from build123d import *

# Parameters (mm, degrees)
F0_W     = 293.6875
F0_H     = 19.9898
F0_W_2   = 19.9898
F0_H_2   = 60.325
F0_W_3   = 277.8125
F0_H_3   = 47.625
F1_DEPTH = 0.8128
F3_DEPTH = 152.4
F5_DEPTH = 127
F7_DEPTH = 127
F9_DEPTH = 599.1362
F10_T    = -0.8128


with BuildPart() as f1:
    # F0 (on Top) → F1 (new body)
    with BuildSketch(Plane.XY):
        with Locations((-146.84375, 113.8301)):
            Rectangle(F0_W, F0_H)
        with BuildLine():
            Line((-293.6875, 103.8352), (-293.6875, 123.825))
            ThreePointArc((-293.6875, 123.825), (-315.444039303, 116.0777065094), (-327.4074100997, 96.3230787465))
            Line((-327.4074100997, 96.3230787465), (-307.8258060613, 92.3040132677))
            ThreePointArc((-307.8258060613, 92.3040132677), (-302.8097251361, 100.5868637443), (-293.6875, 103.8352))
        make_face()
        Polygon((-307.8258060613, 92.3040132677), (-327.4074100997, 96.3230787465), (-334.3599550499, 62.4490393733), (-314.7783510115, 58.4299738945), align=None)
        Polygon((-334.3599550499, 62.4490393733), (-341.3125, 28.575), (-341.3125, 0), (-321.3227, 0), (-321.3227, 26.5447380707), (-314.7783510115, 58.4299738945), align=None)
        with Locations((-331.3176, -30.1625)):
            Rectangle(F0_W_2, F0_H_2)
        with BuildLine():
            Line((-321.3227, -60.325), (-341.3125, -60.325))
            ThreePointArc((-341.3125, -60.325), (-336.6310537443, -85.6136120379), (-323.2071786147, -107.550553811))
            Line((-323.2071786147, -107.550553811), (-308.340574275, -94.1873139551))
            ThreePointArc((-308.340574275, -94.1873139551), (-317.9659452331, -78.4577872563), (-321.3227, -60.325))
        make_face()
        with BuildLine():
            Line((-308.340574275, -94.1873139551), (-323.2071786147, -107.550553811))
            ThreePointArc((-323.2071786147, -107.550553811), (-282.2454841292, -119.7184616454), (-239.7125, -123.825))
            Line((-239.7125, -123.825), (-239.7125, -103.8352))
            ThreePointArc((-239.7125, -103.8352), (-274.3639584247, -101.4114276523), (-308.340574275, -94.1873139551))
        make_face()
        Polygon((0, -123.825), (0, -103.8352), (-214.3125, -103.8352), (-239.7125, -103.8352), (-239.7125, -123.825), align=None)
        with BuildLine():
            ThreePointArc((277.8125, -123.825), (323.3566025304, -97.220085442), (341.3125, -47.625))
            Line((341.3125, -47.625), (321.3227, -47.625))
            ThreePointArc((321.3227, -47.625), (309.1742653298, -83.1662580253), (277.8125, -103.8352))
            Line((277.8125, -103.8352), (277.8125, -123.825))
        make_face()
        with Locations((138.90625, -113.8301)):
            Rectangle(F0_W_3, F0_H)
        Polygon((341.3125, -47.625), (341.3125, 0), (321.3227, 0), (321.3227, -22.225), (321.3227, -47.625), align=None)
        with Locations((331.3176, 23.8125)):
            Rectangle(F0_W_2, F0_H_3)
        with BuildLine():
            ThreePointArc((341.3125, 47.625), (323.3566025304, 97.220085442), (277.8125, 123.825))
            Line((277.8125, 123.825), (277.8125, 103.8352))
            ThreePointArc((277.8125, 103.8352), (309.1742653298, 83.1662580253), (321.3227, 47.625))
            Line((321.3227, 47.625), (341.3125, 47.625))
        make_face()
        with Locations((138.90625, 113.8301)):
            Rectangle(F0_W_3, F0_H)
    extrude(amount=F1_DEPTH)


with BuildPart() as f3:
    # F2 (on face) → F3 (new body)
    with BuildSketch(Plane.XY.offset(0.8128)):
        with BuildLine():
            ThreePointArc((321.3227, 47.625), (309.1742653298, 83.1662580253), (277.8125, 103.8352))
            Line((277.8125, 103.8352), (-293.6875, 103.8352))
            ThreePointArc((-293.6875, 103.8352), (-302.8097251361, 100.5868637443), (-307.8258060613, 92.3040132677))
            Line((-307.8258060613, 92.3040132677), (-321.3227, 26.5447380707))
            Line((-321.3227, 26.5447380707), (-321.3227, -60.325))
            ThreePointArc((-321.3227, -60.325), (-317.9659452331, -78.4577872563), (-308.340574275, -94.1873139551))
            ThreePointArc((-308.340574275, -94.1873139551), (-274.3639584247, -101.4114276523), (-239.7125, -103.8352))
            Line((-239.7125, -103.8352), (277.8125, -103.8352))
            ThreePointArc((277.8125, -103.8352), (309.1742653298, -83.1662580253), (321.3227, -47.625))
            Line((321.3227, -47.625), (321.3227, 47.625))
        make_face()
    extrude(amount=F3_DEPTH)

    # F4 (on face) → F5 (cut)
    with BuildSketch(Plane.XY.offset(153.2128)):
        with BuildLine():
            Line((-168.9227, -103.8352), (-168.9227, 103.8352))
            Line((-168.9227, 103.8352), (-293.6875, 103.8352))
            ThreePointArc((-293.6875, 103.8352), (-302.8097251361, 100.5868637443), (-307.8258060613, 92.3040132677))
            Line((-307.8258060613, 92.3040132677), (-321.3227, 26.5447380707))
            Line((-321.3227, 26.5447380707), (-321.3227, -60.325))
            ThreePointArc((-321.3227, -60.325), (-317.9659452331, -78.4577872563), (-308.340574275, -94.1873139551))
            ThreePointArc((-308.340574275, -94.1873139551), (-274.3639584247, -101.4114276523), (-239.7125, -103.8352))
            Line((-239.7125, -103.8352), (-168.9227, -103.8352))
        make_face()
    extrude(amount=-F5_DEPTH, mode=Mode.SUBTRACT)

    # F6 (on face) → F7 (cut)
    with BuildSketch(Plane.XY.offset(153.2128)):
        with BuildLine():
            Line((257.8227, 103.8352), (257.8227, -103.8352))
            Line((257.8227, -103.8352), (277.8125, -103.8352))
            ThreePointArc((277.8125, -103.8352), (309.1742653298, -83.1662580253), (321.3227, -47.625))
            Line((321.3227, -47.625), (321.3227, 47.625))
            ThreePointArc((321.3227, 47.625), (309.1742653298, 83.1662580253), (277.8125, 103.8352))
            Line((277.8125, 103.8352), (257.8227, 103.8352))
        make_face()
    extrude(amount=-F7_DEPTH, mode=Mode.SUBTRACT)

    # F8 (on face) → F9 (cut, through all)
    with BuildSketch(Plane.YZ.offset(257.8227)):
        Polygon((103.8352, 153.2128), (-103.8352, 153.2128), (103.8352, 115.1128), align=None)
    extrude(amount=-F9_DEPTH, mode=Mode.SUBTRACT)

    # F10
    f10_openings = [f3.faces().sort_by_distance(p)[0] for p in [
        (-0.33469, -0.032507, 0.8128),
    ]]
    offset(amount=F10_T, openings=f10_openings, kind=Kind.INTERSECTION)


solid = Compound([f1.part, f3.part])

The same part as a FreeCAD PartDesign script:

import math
import FreeCAD as App
import Part
import Sketcher
Q = App.Units.Quantity


def faces_at(feature, points):
    """Names of the faces that lie closest to the given points."""
    faces = feature.Shape.Faces
    near = lambda p: min(range(len(faces)), key=lambda i: faces[i].distToShape(Part.Vertex(*p))[0])
    return sorted({f"Face{near(p) + 1}" for p in points})

doc = App.newDocument("Part")
body = doc.addObject("PartDesign::Body", "Body")

# Sketch on XY plane
sketch1 = body.newObject("Sketcher::SketchObject", "Sketch")
sketch1.AttachmentSupport = (doc.getObject("XY_Plane"), [""])
sketch1.MapMode = "FlatFace"
sketch1.addGeometry([
    Part.ArcOfCircle(Part.Circle(App.Vector(-294, 89, 0), App.Vector(0, 0, 1), 34), math.radians(90), math.radians(168)),  # 0
    Part.LineSegment(App.Vector(-327, 96, 0), App.Vector(-334, 62, 0)),  # 1
    Part.LineSegment(App.Vector(-334, 62, 0), App.Vector(-341, 29, 0)),  # 2
    Part.LineSegment(App.Vector(-341, 29, 0), App.Vector(-341, -60, 0)),  # 3
    Part.ArcOfCircle(Part.Circle(App.Vector(-271, -60, 0), App.Vector(0, 0, 1), 71), math.radians(180), math.radians(222)),  # 4
    Part.ArcOfCircle(Part.Circle(App.Vector(-240, 98, 0), App.Vector(0, 0, 1), 222), math.radians(-112), math.radians(-90)),  # 5
    Part.LineSegment(App.Vector(-240, -124, 0), App.Vector(278, -124, 0)),  # 6
    Part.ArcOfCircle(Part.Circle(App.Vector(264, -48, 0), App.Vector(0, 0, 1), 77), math.radians(-80), math.radians(0)),  # 7
    Part.LineSegment(App.Vector(341, -48, 0), App.Vector(341, 48, 0)),  # 8
    Part.ArcOfCircle(Part.Circle(App.Vector(264, 48, 0), App.Vector(0, 0, 1), 77), math.radians(0), math.radians(80)),  # 9
    Part.LineSegment(App.Vector(278, 124, 0), App.Vector(-294, 124, 0)),  # 10
    Part.LineSegment(App.Vector(-294, 104, 0), App.Vector(278, 104, 0)),  # 11
    Part.ArcOfCircle(Part.Circle(App.Vector(263, 48, 0), App.Vector(0, 0, 1), 58), math.radians(0), math.radians(75)),  # 12
    Part.LineSegment(App.Vector(321, 48, 0), App.Vector(321, -48, 0)),  # 13
    Part.ArcOfCircle(Part.Circle(App.Vector(263, -48, 0), App.Vector(0, 0, 1), 58), math.radians(-75), math.radians(0)),  # 14
    Part.LineSegment(App.Vector(278, -104, 0), App.Vector(-240, -104, 0)),  # 15
    Part.ArcOfCircle(Part.Circle(App.Vector(-240, 145, 0), App.Vector(0, 0, 1), 249), math.radians(-106), math.radians(-90)),  # 16
    Part.ArcOfCircle(Part.Circle(App.Vector(-271, -60, 0), App.Vector(0, 0, 1), 51), math.radians(180), math.radians(222)),  # 17
    Part.LineSegment(App.Vector(-321, -60, 0), App.Vector(-321, 27, 0)),  # 18
    Part.LineSegment(App.Vector(-321, 27, 0), App.Vector(-315, 58, 0)),  # 19
    Part.LineSegment(App.Vector(-315, 58, 0), App.Vector(-308, 92, 0)),  # 20
    Part.ArcOfCircle(Part.Circle(App.Vector(-294, 89, 0), App.Vector(0, 0, 1), 14), math.radians(90), math.radians(168)),  # 21
], False)
sketch1.addConstraint([
    Sketcher.Constraint("Tangent", 0, 2, 1, 1),
    Sketcher.Constraint("Coincident", 1, 2, 2, 1),
    Sketcher.Constraint("Coincident", 2, 2, 3, 1),
    Sketcher.Constraint("Tangent", 3, 2, 4, 1),
    Sketcher.Constraint("Coincident", 4, 2, 5, 1),
    Sketcher.Constraint("Tangent", 5, 2, 6, 1),
    Sketcher.Constraint("Coincident", 6, 2, 7, 1),
    Sketcher.Constraint("Tangent", 7, 2, 8, 1),
    Sketcher.Constraint("Tangent", 8, 2, 9, 1),
    Sketcher.Constraint("Coincident", 9, 2, 10, 1),
    Sketcher.Constraint("Tangent", 10, 2, 0, 1),
    Sketcher.Constraint("Coincident", 11, 2, 12, 2),
    Sketcher.Constraint("Tangent", 12, 1, 13, 1),
    Sketcher.Constraint("Tangent", 13, 2, 14, 2),
    Sketcher.Constraint("Coincident", 14, 1, 15, 1),
    Sketcher.Constraint("Tangent", 15, 2, 16, 2),
    Sketcher.Constraint("Coincident", 16, 1, 17, 2),
    Sketcher.Constraint("Tangent", 17, 1, 18, 1),
    Sketcher.Constraint("Coincident", 18, 2, 19, 1),
    Sketcher.Constraint("Coincident", 19, 2, 20, 1),
    Sketcher.Constraint("Tangent", 20, 2, 21, 2),
    Sketcher.Constraint("Tangent", 21, 1, 11, 1),
    Sketcher.Constraint("Vertical", 3),
    Sketcher.Constraint("Horizontal", 6),
    Sketcher.Constraint("Vertical", 8),
    Sketcher.Constraint("Horizontal", 10),
    Sketcher.Constraint("Horizontal", 11),
    Sketcher.Constraint("Vertical", 13),
    Sketcher.Constraint("Horizontal", 15),
    Sketcher.Constraint("Vertical", 18),
    Sketcher.Constraint("Coincident", 17, 3, 4, 3),
    Sketcher.Constraint("Coincident", 21, 3, 0, 3),
    Sketcher.Constraint("Equal", 7, 9),
    Sketcher.Constraint("Equal", 12, 14),
    Sketcher.Constraint("Symmetric", 6, 2, 9, 2, -1),
    Sketcher.Constraint("Symmetric", 11, 2, 14, 1, -1),
    Sketcher.Constraint("Parallel", 1, 2),
    Sketcher.Constraint("Parallel", 2, 19),
    Sketcher.Constraint("Parallel", 19, 20),
    Sketcher.Constraint("Horizontal", 9, 3, 12, 3),
    Sketcher.Constraint("Vertical", 5, 3, 16, 3),
    Sketcher.Constraint("Vertical", 9, 2, 11, 2),
    Sketcher.Constraint("Equal", 1, 2),
    Sketcher.Constraint("Equal", 2, 20),
    Sketcher.Constraint("Radius", 7, Q("3.05 in")),
    Sketcher.Constraint("DistanceX", 10, 2, 10, 1, Q("22.5 in")),
    Sketcher.Constraint("DistanceY", 3, 2, 3, 1, Q("3.5 in")),
    Sketcher.Constraint("Radius", 4, Q("2.78125 in")),
    Sketcher.Constraint("DistanceX", 3, 2, 5, 2, Q("4 in")),
    Sketcher.Constraint("DistanceY", 5, 2, 2, 2, Q("6 in")),
    Sketcher.Constraint("DistanceY", 6, 2, 7, 3, Q("3 in")),
    Sketcher.Constraint("DistanceY", 8, 1, 8, 2, Q("3.75 in")),
    Sketcher.Constraint("DistanceX", 6, 1, 6, 2, Q("20.375 in")),
    Sketcher.Constraint("DistanceX", 0, 3, -1, 1, Q("11.5625 in")),
    Sketcher.Constraint("DistanceY", -1, 1, 11, 2, Q("4.088 in")),
    Sketcher.Constraint("Radius", 0, Q("34.422832 mm")),
    Sketcher.Constraint("Radius", 5, Q("222.318439 mm")),
    Sketcher.Constraint("Radius", 17, Q("50.65395 mm")),
    Sketcher.Constraint("DistanceX", 12, 1, 8, 2, Q("0.787 in")),
    Sketcher.Constraint("Radius", 16, Q("248.909153 mm")),
])
pad1 = body.newObject("PartDesign::Pad", "Pad")
pad1.Profile = sketch1
pad1.Length = Q("0.032 in")
body2 = doc.addObject("PartDesign::Body", "Body001")

# Sketch on XY plane
sketch2 = body2.newObject("Sketcher::SketchObject", "Sketch001")
sketch2.AttachmentSupport = (doc.getObject("XY_Plane001"), [""])
sketch2.MapMode = "FlatFace"
sketch2.AttachmentOffset = App.Placement(App.Vector(0, 0, 0.032 * 25.4), App.Rotation())
sketch2.addGeometry([
    Part.ArcOfCircle(Part.Circle(App.Vector(263, 48, 0), App.Vector(0, 0, 1), 58), math.radians(0), math.radians(75)),  # 0
    Part.LineSegment(App.Vector(278, 104, 0), App.Vector(-294, 104, 0)),  # 1
    Part.ArcOfCircle(Part.Circle(App.Vector(-294, 89, 0), App.Vector(0, 0, 1), 14), math.radians(90), math.radians(168)),  # 2
    Part.LineSegment(App.Vector(-308, 92, 0), App.Vector(-321, 27, 0)),  # 3
    Part.LineSegment(App.Vector(-321, 27, 0), App.Vector(-321, -60, 0)),  # 4
    Part.ArcOfCircle(Part.Circle(App.Vector(-271, -60, 0), App.Vector(0, 0, 1), 51), math.radians(180), math.radians(222)),  # 5
    Part.ArcOfCircle(Part.Circle(App.Vector(-240, 145, 0), App.Vector(0, 0, 1), 249), math.radians(-106), math.radians(-90)),  # 6
    Part.LineSegment(App.Vector(-240, -104, 0), App.Vector(278, -104, 0)),  # 7
    Part.ArcOfCircle(Part.Circle(App.Vector(263, -48, 0), App.Vector(0, 0, 1), 58), math.radians(-75), math.radians(0)),  # 8
    Part.LineSegment(App.Vector(321, -48, 0), App.Vector(321, 48, 0)),  # 9
], False)
sketch2.addConstraint([
    Sketcher.Constraint("Coincident", 0, 2, 1, 1),
    Sketcher.Constraint("Tangent", 1, 2, 2, 1),
    Sketcher.Constraint("Tangent", 2, 2, 3, 1),
    Sketcher.Constraint("Coincident", 3, 2, 4, 1),
    Sketcher.Constraint("Tangent", 4, 2, 5, 1),
    Sketcher.Constraint("Coincident", 5, 2, 6, 1),
    Sketcher.Constraint("Tangent", 6, 2, 7, 1),
    Sketcher.Constraint("Coincident", 7, 2, 8, 1),
    Sketcher.Constraint("Tangent", 8, 2, 9, 1),
    Sketcher.Constraint("Tangent", 9, 2, 0, 1),
    Sketcher.Constraint("Horizontal", 1),
    Sketcher.Constraint("Vertical", 4),
    Sketcher.Constraint("Horizontal", 7),
    Sketcher.Constraint("Vertical", 9),
    Sketcher.Constraint("Equal", 0, 8),
    Sketcher.Constraint("Symmetric", 0, 2, 7, 2, -1),
    Sketcher.Constraint("DistanceX", 1, 2, 1, 1, Q("22.5 in")),
    Sketcher.Constraint("DistanceY", 9, 1, 9, 2, Q("3.75 in")),
    Sketcher.Constraint("DistanceY", 5, 3, 8, 3, Q("0.5 in")),
    Sketcher.Constraint("DistanceX", 7, 1, 7, 2, Q("20.375 in")),
    Sketcher.Constraint("DistanceX", 2, 3, -1, 1, Q("11.5625 in")),
    Sketcher.Constraint("DistanceX", 5, 3, -1, 1, Q("10.65625 in")),
    Sketcher.Constraint("DistanceY", -1, 1, 0, 2, Q("4.088 in")),
    Sketcher.Constraint("Radius", 2, Q("14.433032 mm")),
    Sketcher.Constraint("Radius", 5, Q("50.65395 mm")),
    Sketcher.Constraint("DistanceX", 7, 2, 8, 2, Q("1.713 in")),
    Sketcher.Constraint("Radius", 6, Q("248.909153 mm")),
    Sketcher.Constraint("DistanceY", 4, 2, 4, 1, Q("86.869738 mm")),
])
pad2 = body2.newObject("PartDesign::Pad", "Pad001")
pad2.Profile = sketch2
pad2.Length = Q("6 in")

# Sketch on XY plane
sketch3 = body2.newObject("Sketcher::SketchObject", "Sketch002")
sketch3.AttachmentSupport = (doc.getObject("XY_Plane001"), [""])
sketch3.MapMode = "FlatFace"
sketch3.AttachmentOffset = App.Placement(App.Vector(0, 0, 6.032 * 25.4), App.Rotation())
sketch3.addGeometry([
    Part.LineSegment(App.Vector(-169, -104, 0), App.Vector(-169, 104, 0)),  # 0
    Part.LineSegment(App.Vector(-169, 104, 0), App.Vector(-294, 104, 0)),  # 1
    Part.ArcOfCircle(Part.Circle(App.Vector(-294, 89, 0), App.Vector(0, 0, 1), 14), math.radians(90), math.radians(168)),  # 2
    Part.LineSegment(App.Vector(-308, 92, 0), App.Vector(-321, 27, 0)),  # 3
    Part.LineSegment(App.Vector(-321, 27, 0), App.Vector(-321, -60, 0)),  # 4
    Part.ArcOfCircle(Part.Circle(App.Vector(-271, -60, 0), App.Vector(0, 0, 1), 51), math.radians(180), math.radians(222)),  # 5
    Part.ArcOfCircle(Part.Circle(App.Vector(-240, 145, 0), App.Vector(0, 0, 1), 249), math.radians(-106), math.radians(-90)),  # 6
    Part.LineSegment(App.Vector(-240, -104, 0), App.Vector(-169, -104, 0)),  # 7
], False)
sketch3.addConstraint([
    Sketcher.Constraint("Coincident", 0, 2, 1, 1),
    Sketcher.Constraint("Tangent", 1, 2, 2, 1),
    Sketcher.Constraint("Tangent", 2, 2, 3, 1),
    Sketcher.Constraint("Coincident", 3, 2, 4, 1),
    Sketcher.Constraint("Tangent", 4, 2, 5, 1),
    Sketcher.Constraint("Coincident", 5, 2, 6, 1),
    Sketcher.Constraint("Tangent", 6, 2, 7, 1),
    Sketcher.Constraint("Coincident", 7, 2, 0, 1),
    Sketcher.Constraint("Vertical", 0),
    Sketcher.Constraint("Horizontal", 1),
    Sketcher.Constraint("Vertical", 4),
    Sketcher.Constraint("Horizontal", 7),
    Sketcher.Constraint("DistanceX", 4, 2, 7, 2, Q("6 in")),
    Sketcher.Constraint("DistanceX", 1, 2, 1, 1, Q("4.912 in")),
    Sketcher.Constraint("DistanceX", 7, 1, 7, 2, Q("2.787 in")),
    Sketcher.Constraint("DistanceY", 0, 1, 0, 2, Q("8.176 in")),
    Sketcher.Constraint("DistanceX", 2, 3, -1, 1, Q("11.5625 in")),
    Sketcher.Constraint("DistanceX", 5, 3, -1, 1, Q("10.65625 in")),
    Sketcher.Constraint("DistanceY", 5, 3, -1, 1, Q("2.375 in")),
    Sketcher.Constraint("DistanceY", -1, 1, 0, 2, Q("4.088 in")),
    Sketcher.Constraint("Radius", 2, Q("14.433032 mm")),
    Sketcher.Constraint("Radius", 6, Q("248.909153 mm")),
    Sketcher.Constraint("DistanceY", 4, 2, 4, 1, Q("86.869738 mm")),
])
pocket1 = body2.newObject("PartDesign::Pocket", "Pocket")
pocket1.Profile = sketch3
pocket1.Length = Q("5 in")

# Sketch on XY plane
sketch4 = body2.newObject("Sketcher::SketchObject", "Sketch003")
sketch4.AttachmentSupport = (doc.getObject("XY_Plane001"), [""])
sketch4.MapMode = "FlatFace"
sketch4.AttachmentOffset = App.Placement(App.Vector(0, 0, 6.032 * 25.4), App.Rotation())
sketch4.addGeometry([
    Part.LineSegment(App.Vector(258, 104, 0), App.Vector(258, -104, 0)),  # 0
    Part.LineSegment(App.Vector(258, -104, 0), App.Vector(278, -104, 0)),  # 1
    Part.ArcOfCircle(Part.Circle(App.Vector(263, -48, 0), App.Vector(0, 0, 1), 58), math.radians(-75), math.radians(0)),  # 2
    Part.LineSegment(App.Vector(321, -48, 0), App.Vector(321, 48, 0)),  # 3
    Part.ArcOfCircle(Part.Circle(App.Vector(263, 48, 0), App.Vector(0, 0, 1), 58), math.radians(0), math.radians(75)),  # 4
    Part.LineSegment(App.Vector(278, 104, 0), App.Vector(258, 104, 0)),  # 5
], False)
sketch4.addConstraint([
    Sketcher.Constraint("Coincident", 0, 2, 1, 1),
    Sketcher.Constraint("Coincident", 1, 2, 2, 1),
    Sketcher.Constraint("Tangent", 2, 2, 3, 1),
    Sketcher.Constraint("Tangent", 3, 2, 4, 1),
    Sketcher.Constraint("Coincident", 4, 2, 5, 1),
    Sketcher.Constraint("Coincident", 5, 2, 0, 1),
    Sketcher.Constraint("Vertical", 0),
    Sketcher.Constraint("Horizontal", 1),
    Sketcher.Constraint("Vertical", 3),
    Sketcher.Constraint("Horizontal", 5),
    Sketcher.Constraint("Equal", 2, 4),
    Sketcher.Constraint("Symmetric", 1, 2, 4, 2, -1),
    Sketcher.Constraint("DistanceY", 3, 1, 3, 2, Q("3.75 in")),
    Sketcher.Constraint("DistanceX", 0, 2, 2, 2, Q("2.5 in")),
    Sketcher.Constraint("DistanceX", 1, 1, 1, 2, Q("0.787 in")),
    Sketcher.Constraint("DistanceY", 0, 2, 0, 1, Q("8.176 in")),
    Sketcher.Constraint("DistanceX", -1, 1, 1, 2, Q("10.9375 in")),
])
pocket2 = body2.newObject("PartDesign::Pocket", "Pocket001")
pocket2.Profile = sketch4
pocket2.Length = Q("5 in")

# Sketch on YZ plane
sketch5 = body2.newObject("Sketcher::SketchObject", "Sketch004")
sketch5.AttachmentSupport = (doc.getObject("YZ_Plane001"), [""])
sketch5.MapMode = "FlatFace"
sketch5.AttachmentOffset = App.Placement(App.Vector(0, 0, 10.1505 * 25.4), App.Rotation())
sketch5.addGeometry([
    Part.LineSegment(App.Vector(104, 153, 0), App.Vector(-104, 153, 0)),
    Part.LineSegment(App.Vector(-104, 153, 0), App.Vector(104, 115, 0)),
    Part.LineSegment(App.Vector(104, 115, 0), App.Vector(104, 153, 0)),
], False)
sketch5.addConstraint([
    Sketcher.Constraint("Coincident", 0, 2, 1, 1),
    Sketcher.Constraint("Coincident", 1, 2, 2, 1),
    Sketcher.Constraint("Coincident", 2, 2, 0, 1),
    Sketcher.Constraint("Horizontal", 0),
    Sketcher.Constraint("Vertical", 2),
    Sketcher.Constraint("DistanceY", 2, 1, 2, 2, Q("1.5 in")),
    Sketcher.Constraint("DistanceX", 0, 2, 0, 1, Q("8.176 in")),
    Sketcher.Constraint("DistanceX", 0, 2, -1, 1, Q("4.088 in")),
    Sketcher.Constraint("DistanceY", -1, 1, 0, 2, Q("6.032 in")),
])
pocket3 = body2.newObject("PartDesign::Pocket", "Pocket002")
pocket3.Profile = sketch5
pocket3.Type = "ThroughAll"
doc.recompute()

thickness = body2.newObject("PartDesign::Thickness", "Thickness")
thickness.Base = (pocket3, faces_at(pocket3, [(0, 0, 0.813)]))
thickness.Value = Q("0.032 in")
thickness.Reversed = True
thickness.Join = "Intersection"

doc.recompute()
